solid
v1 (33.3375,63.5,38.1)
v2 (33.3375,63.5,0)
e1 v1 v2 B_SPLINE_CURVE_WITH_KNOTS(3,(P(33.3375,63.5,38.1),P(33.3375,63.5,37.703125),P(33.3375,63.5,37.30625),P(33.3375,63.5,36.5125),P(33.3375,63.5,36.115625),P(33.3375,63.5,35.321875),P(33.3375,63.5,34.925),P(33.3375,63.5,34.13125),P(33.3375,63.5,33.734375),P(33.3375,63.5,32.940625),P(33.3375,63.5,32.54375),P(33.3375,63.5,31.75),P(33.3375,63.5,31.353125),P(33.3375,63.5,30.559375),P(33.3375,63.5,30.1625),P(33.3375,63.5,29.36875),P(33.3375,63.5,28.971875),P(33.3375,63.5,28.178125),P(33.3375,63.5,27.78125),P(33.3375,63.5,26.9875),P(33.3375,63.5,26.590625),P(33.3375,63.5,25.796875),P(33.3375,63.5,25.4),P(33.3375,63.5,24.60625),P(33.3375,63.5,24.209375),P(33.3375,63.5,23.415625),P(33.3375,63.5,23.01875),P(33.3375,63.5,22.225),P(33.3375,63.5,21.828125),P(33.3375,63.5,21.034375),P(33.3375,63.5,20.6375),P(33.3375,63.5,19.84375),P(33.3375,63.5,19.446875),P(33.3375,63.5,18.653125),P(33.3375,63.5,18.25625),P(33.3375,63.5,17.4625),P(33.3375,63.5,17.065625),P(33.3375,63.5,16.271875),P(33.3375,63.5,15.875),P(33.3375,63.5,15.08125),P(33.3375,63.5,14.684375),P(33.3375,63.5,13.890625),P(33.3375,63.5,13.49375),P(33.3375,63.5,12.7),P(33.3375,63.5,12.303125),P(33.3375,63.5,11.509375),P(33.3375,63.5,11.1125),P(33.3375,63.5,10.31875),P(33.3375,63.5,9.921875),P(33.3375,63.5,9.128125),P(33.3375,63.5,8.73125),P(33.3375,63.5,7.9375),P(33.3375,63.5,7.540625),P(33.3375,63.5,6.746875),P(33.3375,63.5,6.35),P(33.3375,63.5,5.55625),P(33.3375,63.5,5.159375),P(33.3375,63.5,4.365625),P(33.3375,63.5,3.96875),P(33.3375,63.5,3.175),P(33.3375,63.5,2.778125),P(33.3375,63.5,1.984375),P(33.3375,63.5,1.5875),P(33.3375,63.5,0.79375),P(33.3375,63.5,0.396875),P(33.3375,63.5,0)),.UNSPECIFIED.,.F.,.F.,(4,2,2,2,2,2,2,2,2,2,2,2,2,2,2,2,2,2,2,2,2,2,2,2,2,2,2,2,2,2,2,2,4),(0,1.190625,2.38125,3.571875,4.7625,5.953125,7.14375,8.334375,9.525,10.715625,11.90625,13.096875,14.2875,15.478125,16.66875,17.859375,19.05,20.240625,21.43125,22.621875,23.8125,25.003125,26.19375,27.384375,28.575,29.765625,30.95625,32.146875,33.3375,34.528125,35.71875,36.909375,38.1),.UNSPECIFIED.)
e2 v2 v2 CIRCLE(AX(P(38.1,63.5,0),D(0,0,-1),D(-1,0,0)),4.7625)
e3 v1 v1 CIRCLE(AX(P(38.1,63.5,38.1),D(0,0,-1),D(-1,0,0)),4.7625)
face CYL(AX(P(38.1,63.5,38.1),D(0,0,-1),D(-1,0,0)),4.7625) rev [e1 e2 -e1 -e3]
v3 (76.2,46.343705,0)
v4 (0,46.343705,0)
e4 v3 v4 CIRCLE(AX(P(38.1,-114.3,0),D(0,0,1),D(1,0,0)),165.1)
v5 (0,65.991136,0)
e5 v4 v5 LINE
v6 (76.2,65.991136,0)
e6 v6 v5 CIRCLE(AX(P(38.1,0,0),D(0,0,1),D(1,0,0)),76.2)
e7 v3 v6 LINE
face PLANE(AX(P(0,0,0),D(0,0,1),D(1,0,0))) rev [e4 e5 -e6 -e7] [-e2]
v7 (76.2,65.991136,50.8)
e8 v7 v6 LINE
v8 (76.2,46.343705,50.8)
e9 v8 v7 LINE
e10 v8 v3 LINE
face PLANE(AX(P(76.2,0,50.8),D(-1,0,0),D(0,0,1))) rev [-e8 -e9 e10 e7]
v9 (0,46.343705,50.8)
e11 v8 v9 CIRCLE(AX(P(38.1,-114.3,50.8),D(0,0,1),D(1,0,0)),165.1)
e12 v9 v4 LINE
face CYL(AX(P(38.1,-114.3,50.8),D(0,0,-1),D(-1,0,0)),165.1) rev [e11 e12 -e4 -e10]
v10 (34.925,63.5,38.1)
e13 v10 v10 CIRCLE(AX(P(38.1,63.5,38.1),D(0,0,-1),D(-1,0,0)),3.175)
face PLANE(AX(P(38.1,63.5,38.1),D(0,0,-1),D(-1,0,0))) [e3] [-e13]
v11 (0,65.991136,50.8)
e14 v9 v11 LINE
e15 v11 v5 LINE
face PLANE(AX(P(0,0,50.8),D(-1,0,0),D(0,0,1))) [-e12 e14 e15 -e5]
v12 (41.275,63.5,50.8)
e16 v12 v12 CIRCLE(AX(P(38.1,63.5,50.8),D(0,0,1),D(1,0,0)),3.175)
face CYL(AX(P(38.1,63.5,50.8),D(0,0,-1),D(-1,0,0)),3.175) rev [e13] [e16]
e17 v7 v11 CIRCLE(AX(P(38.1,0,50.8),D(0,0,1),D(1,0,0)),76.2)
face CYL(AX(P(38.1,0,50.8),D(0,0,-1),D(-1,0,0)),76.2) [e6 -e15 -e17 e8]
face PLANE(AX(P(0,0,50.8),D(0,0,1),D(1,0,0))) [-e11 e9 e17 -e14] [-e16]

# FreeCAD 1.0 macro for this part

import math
import FreeCAD as App
import Part
import Sketcher
Q = App.Units.Quantity

doc = App.newDocument("Part")
body = doc.addObject("PartDesign::Body", "Body")

# Sketch on XY plane
sketch1 = body.newObject("Sketcher::SketchObject", "Sketch")
sketch1.AttachmentSupport = (doc.getObject("XY_Plane"), [""])
sketch1.MapMode = "FlatFace"
sketch1.addGeometry(Part.LineSegment(App.Vector(0, 66, 0), App.Vector(0, 46.3, 0)), False)
sketch1.addGeometry(Part.ArcOfCircle(Part.Circle(App.Vector(38.1, -114.3, 0), App.Vector(0, 0, 1), 165.1), math.radians(77), math.radians(103)), False)
sketch1.addGeometry(Part.LineSegment(App.Vector(76.2, 46.3, 0), App.Vector(76.2, 66, 0)), False)
sketch1.addGeometry(Part.ArcOfCircle(Part.Circle(App.Vector(38.1, 0, 0), App.Vector(0, 0, 1), 76.2), math.radians(60), math.radians(120)), False)
sketch1.addGeometry(Part.Circle(App.Vector(38.1, 63.5, 0), App.Vector(0, 0, 1), 3.2), False)
sketch1.addConstraint(Sketcher.Constraint("Coincident", 0, 2, 1, 2))
sketch1.addConstraint(Sketcher.Constraint("Coincident", 1, 1, 2, 1))
sketch1.addConstraint(Sketcher.Constraint("Coincident", 2, 2, 3, 1))
sketch1.addConstraint(Sketcher.Constraint("Coincident", 3, 2, 0, 1))
sketch1.addConstraint(Sketcher.Constraint("Vertical", 0))
sketch1.addConstraint(Sketcher.Constraint("Vertical", 2))
sketch1.addConstraint(Sketcher.Constraint("PointOnObject", 3, 3, -1))
sketch1.addConstraint(Sketcher.Constraint("PointOnObject", 0, 2, -2))
sketch1.addConstraint(Sketcher.Constraint("Horizontal", 0, 2, 1, 1))
sketch1.addConstraint(Sketcher.Constraint("Horizontal", 2, 2, 3, 2))
sketch1.addConstraint(Sketcher.Constraint("Vertical", 3, 3, 4, 3))
sketch1.addConstraint(Sketcher.Constraint("Radius", 3, Q("3 in")))
sketch1.addConstraint(Sketcher.Constraint("Radius", 1, Q("6.5 in")))
sketch1.addConstraint(Sketcher.Constraint("Diameter", 4, Q("0.25 in")))
sketch1.addConstraint(Sketcher.Constraint("DistanceX", -1, 1, 1, 1, Q("3 in")))
sketch1.addConstraint(Sketcher.Constraint("DistanceY", 1, 3, 4, 3, Q("7 in")))
sketch1.addConstraint(Sketcher.Constraint("DistanceY", 1, 3, -1, 1, Q("4.5 in")))
pad1 = body.newObject("PartDesign::Pad", "Pad")
pad1.Profile = sketch1
pad1.Length = Q("2 in")

# Sketch on XY plane
sketch2 = body.newObject("Sketcher::SketchObject", "Sketch001")
sketch2.AttachmentSupport = (doc.getObject("XY_Plane"), [""])
sketch2.MapMode = "FlatFace"
sketch2.addGeometry(Part.Circle(App.Vector(38.1, 63.5, 0), App.Vector(0, 0, 1), 4.8), False)
sketch2.addConstraint(Sketcher.Constraint("Diameter", 0, Q("0.375 in")))
sketch2.addConstraint(Sketcher.Constraint("DistanceX", -1, 1, 0, 3, Q("1.5 in")))
sketch2.addConstraint(Sketcher.Constraint("DistanceY", -1, 1, 0, 3, Q("2.5 in")))
pocket1 = body.newObject("PartDesign::Pocket", "Pocket")
pocket1.Profile = sketch2
pocket1.Length = Q("1.5 in")
pocket1.Reversed = True

doc.recompute()
